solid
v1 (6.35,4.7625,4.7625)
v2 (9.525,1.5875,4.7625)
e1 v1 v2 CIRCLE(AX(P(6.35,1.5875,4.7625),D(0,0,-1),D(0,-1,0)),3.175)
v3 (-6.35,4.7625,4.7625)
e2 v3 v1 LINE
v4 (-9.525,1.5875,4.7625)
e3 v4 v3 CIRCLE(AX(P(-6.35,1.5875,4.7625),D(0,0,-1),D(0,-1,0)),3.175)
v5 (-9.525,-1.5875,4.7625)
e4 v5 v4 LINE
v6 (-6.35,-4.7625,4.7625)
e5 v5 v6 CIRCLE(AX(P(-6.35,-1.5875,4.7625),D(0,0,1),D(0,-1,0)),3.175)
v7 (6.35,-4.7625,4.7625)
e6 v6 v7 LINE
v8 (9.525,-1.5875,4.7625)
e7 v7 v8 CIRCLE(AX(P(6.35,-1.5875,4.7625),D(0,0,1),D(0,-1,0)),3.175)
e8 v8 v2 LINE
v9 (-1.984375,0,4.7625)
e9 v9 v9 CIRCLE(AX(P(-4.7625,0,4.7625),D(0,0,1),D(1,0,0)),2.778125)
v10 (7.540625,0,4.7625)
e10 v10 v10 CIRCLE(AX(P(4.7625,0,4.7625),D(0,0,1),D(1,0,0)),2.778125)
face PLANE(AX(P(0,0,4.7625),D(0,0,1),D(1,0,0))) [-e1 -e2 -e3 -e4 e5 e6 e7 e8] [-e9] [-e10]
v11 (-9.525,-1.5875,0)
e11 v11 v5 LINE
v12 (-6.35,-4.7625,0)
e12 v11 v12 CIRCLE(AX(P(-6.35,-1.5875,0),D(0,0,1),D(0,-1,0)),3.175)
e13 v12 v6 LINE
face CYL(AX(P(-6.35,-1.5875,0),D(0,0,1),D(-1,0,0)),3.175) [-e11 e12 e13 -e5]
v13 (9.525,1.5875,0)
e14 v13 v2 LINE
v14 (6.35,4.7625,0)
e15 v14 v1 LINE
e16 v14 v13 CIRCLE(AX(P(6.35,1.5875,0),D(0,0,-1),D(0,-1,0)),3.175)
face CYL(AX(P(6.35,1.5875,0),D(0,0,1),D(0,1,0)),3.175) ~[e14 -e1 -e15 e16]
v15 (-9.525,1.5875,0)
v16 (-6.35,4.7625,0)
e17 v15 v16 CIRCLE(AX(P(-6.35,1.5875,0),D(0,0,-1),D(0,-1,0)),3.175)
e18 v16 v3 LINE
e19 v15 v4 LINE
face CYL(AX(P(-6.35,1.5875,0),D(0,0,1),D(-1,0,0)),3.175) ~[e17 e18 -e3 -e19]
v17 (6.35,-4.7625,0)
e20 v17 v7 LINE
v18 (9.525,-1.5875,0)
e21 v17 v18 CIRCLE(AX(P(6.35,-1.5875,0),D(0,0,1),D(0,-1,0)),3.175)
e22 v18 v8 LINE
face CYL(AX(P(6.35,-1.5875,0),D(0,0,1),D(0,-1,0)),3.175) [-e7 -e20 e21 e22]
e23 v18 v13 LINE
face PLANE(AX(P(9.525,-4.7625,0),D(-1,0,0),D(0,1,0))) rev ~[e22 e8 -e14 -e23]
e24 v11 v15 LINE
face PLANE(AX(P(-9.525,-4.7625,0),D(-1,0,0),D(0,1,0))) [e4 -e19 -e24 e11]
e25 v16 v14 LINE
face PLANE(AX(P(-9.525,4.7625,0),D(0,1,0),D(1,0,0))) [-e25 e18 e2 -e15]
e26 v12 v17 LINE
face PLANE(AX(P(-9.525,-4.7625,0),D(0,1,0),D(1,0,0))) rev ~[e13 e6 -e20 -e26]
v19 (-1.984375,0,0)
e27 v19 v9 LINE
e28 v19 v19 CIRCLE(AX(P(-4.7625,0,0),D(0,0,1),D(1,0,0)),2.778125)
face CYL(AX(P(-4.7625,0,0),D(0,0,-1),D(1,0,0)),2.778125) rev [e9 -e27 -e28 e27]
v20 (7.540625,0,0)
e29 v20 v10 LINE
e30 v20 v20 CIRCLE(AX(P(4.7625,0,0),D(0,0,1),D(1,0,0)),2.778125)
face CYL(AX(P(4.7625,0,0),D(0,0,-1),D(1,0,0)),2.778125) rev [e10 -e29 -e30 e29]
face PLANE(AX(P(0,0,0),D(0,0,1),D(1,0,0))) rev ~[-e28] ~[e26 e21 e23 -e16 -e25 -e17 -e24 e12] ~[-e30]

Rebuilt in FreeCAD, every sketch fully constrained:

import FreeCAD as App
import Part
import Sketcher
Q = App.Units.Quantity


def edges_at(feature, points):
    """Names of the edges that pass closest to the given points."""
    edges = feature.Shape.Edges
    near = lambda p: min(range(len(edges)), key=lambda i: edges[i].distToShape(Part.Vertex(*p))[0])
    return sorted({f"Edge{near(p) + 1}" for p in points})

doc = App.newDocument("Part")
body = doc.addObject("PartDesign::Body", "Body")

sketch1 = doc.addObject("Sketcher::SketchObject", "Sketch")
body.addObject(sketch1)
sketch1.AttachmentSupport = (doc.XY_Plane, [""])
sketch1.MapMode = "FlatFace"
sketch1.addGeometry(Part.LineSegment(App.Vector(-9.525, 4.7625, 0), App.Vector(-9.525, -4.7625, 0)), False)
sketch1.addGeometry(Part.LineSegment(App.Vector(-9.525, -4.7625, 0), App.Vector(9.525, -4.7625, 0)), False)
sketch1.addGeometry(Part.LineSegment(App.Vector(9.525, -4.7625, 0), App.Vector(9.525, 4.7625, 0)), False)
sketch1.addGeometry(Part.LineSegment(App.Vector(9.525, 4.7625, 0), App.Vector(-9.525, 4.7625, 0)), False)
sketch1.addGeometry(Part.Circle(App.Vector(-4.7625, 0, 0), App.Vector(0, 0, 1), 2.778125), False)
sketch1.addGeometry(Part.Circle(App.Vector(4.7625, 0, 0), App.Vector(0, 0, 1), 2.778125), False)
sketch1.addConstraint(Sketcher.Constraint("Coincident", 0, 2, 1, 1))
sketch1.addConstraint(Sketcher.Constraint("Coincident", 1, 2, 2, 1))
sketch1.addConstraint(Sketcher.Constraint("Coincident", 2, 2, 3, 1))
sketch1.addConstraint(Sketcher.Constraint("Coincident", 3, 2, 0, 1))
sketch1.addConstraint(Sketcher.Constraint("Vertical", 0))
sketch1.addConstraint(Sketcher.Constraint("Horizontal", 1))
sketch1.addConstraint(Sketcher.Constraint("Vertical", 2))
sketch1.addConstraint(Sketcher.Constraint("Horizontal", 3))
sketch1.addConstraint(Sketcher.Constraint("Equal", 4, 5))
sketch1.addConstraint(Sketcher.Constraint("Symmetric", 4, 3, 5, 3, -1, 1))
sketch1.addConstraint(Sketcher.Constraint("Symmetric", 0, 2, 2, 2, -1, 1))
sketch1.addConstraint(Sketcher.Constraint("PointOnObject", 4, 3, -1))
sketch1.addConstraint(Sketcher.Constraint("Diameter", 4, Q("0.21875 in")))
sketch1.addConstraint(Sketcher.Constraint("DistanceX", 1, 1, 1, 2, Q("0.75 in")))
sketch1.addConstraint(Sketcher.Constraint("DistanceY", 0, 2, 0, 1, Q("0.375 in")))
sketch1.addConstraint(Sketcher.Constraint("DistanceX", 4, 3, -1, 1, Q("0.1875 in")))
pad1 = doc.addObject("PartDesign::Pad", "Pad")
body.addObject(pad1)
pad1.Profile = sketch1
pad1.Length = Q("0.1875 in")
doc.recompute()

fillet = doc.addObject("PartDesign::Fillet", "Fillet")
body.addObject(fillet)
fillet.Base = (pad1, edges_at(pad1, [
    (-9.525, -4.763, 2.381),
    (-9.525, 4.763, 2.381),
    (9.525, -4.763, 2.381),
    (9.525, 4.763, 2.381),
]))
fillet.Radius = Q("0.125 in")

doc.recompute()
